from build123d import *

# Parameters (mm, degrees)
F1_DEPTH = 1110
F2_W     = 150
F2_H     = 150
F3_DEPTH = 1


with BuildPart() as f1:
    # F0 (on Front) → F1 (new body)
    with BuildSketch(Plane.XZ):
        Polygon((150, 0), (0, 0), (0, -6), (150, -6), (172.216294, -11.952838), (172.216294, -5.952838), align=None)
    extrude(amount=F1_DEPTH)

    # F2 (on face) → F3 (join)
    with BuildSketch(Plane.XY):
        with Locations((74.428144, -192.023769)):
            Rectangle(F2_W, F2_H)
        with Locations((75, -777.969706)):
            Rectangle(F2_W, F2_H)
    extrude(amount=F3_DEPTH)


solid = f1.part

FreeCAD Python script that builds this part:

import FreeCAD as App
import Part
import Sketcher
Q = App.Units.Quantity


def add_polygon(sketch, points):
    """Adds a closed chain of lines whose ends are joined by coincident constraints."""
    first, n = sketch.GeometryCount, len(points)
    for a, b in zip(points, points[1:] + points[:1]):
        sketch.addGeometry(Part.LineSegment(App.Vector(*a, 0), App.Vector(*b, 0)), False)
    for i in range(n):
        sketch.addConstraint(Sketcher.Constraint("Coincident", first + i, 2, first + (i + 1) % n, 1))

doc = App.newDocument("Part")
params = doc.addObject("Spreadsheet::Sheet", "Params")
for row, (alias, value) in enumerate([
    ("sketch1_width", "150 mm"),
    ("sketch1_height", "6 mm"),
    ("sketch1_length", "23 mm"),
    ("pad1_length", "1110 mm"),
    ("sketch2_width", "150 mm"),
    ("pad2_length", "1 mm"),
], start=1):
    params.set(f"A{row}", alias)
    params.set(f"B{row}", "=" + value)
    params.setAlias(f"B{row}", alias)

body = doc.addObject("PartDesign::Body", "Body")

# Sketch on XZ plane
sketch1 = body.newObject("Sketcher::SketchObject", "Sketch")
sketch1.AttachmentSupport = (doc.getObject("XZ_Plane"), [""])
sketch1.MapMode = "FlatFace"
add_polygon(sketch1, [(150, 0), (0, 0), (0, -6), (150, -6), (172, -12), (172, -6)])  # lines 0-5
sketch1.addConstraint([
    Sketcher.Constraint("Horizontal", 0),
    Sketcher.Constraint("Vertical", 1),
    Sketcher.Constraint("Horizontal", 2),
    Sketcher.Constraint("Vertical", 4),
    Sketcher.Constraint("Coincident", 0, 2, -1, 1),
    Sketcher.Constraint("Parallel", 3, 5),
    Sketcher.Constraint("Vertical", 2, 2, 5, 2),
    Sketcher.Constraint("DistanceX", 0, 2, 0, 1, Q("150 mm")),
    Sketcher.Constraint("DistanceY", 1, 2, 1, 1, Q("6 mm")),
    Sketcher.Constraint("Angle", 3, Q("-15 deg")),
    Sketcher.Constraint("Distance", 3, Q("23 mm")),
])
sketch1.setExpression("Constraints[13]", "Params.sketch1_width")
sketch1.setExpression("Constraints[14]", "Params.sketch1_height")
sketch1.setExpression("Constraints[16]", "Params.sketch1_length")
pad1 = body.newObject("PartDesign::Pad", "Pad")
pad1.Profile = sketch1
pad1.setExpression("Length", "Params.pad1_length")

# Sketch on XY plane
sketch2 = body.newObject("Sketcher::SketchObject", "Sketch001")
sketch2.AttachmentSupport = (doc.getObject("XY_Plane"), [""])
sketch2.MapMode = "FlatFace"
add_polygon(sketch2, [(-1, -117), (-1, -267), (149, -267), (149, -117)])  # lines 0-3
add_polygon(sketch2, [(0, -703), (0, -853), (150, -853), (150, -703)])  # lines 4-7
sketch2.addConstraint([
    Sketcher.Constraint("Vertical", 0),
    Sketcher.Constraint("Horizontal", 1),
    Sketcher.Constraint("Vertical", 2),
    Sketcher.Constraint("Horizontal", 3),
    Sketcher.Constraint("Vertical", 4),
    Sketcher.Constraint("Horizontal", 5),
    Sketcher.Constraint("Vertical", 6),
    Sketcher.Constraint("Horizontal", 7),
    Sketcher.Constraint("PointOnObject", 4, 2, -2),
    Sketcher.Constraint("Equal", 3, 5),
    Sketcher.Constraint("Equal", 7, 0),
    Sketcher.Constraint("Equal", 2, 4),
    Sketcher.Constraint("DistanceX", 1, 1, 1, 2, Q("150 mm")),
    Sketcher.Constraint("DistanceY", 0, 2, -1, 1, Q("267.023769 mm")),
    Sketcher.Constraint("DistanceX", 0, 2, -1, 1, Q("0.571856 mm")),
    Sketcher.Constraint("DistanceY", 4, 2, -1, 1, Q("852.969706 mm")),
])
sketch2.setExpression("Constraints[20]", "Params.sketch2_width")
pad2 = body.newObject("PartDesign::Pad", "Pad001")
pad2.Profile = sketch2
pad2.setExpression("Length", "Params.pad2_length")

doc.recompute()
